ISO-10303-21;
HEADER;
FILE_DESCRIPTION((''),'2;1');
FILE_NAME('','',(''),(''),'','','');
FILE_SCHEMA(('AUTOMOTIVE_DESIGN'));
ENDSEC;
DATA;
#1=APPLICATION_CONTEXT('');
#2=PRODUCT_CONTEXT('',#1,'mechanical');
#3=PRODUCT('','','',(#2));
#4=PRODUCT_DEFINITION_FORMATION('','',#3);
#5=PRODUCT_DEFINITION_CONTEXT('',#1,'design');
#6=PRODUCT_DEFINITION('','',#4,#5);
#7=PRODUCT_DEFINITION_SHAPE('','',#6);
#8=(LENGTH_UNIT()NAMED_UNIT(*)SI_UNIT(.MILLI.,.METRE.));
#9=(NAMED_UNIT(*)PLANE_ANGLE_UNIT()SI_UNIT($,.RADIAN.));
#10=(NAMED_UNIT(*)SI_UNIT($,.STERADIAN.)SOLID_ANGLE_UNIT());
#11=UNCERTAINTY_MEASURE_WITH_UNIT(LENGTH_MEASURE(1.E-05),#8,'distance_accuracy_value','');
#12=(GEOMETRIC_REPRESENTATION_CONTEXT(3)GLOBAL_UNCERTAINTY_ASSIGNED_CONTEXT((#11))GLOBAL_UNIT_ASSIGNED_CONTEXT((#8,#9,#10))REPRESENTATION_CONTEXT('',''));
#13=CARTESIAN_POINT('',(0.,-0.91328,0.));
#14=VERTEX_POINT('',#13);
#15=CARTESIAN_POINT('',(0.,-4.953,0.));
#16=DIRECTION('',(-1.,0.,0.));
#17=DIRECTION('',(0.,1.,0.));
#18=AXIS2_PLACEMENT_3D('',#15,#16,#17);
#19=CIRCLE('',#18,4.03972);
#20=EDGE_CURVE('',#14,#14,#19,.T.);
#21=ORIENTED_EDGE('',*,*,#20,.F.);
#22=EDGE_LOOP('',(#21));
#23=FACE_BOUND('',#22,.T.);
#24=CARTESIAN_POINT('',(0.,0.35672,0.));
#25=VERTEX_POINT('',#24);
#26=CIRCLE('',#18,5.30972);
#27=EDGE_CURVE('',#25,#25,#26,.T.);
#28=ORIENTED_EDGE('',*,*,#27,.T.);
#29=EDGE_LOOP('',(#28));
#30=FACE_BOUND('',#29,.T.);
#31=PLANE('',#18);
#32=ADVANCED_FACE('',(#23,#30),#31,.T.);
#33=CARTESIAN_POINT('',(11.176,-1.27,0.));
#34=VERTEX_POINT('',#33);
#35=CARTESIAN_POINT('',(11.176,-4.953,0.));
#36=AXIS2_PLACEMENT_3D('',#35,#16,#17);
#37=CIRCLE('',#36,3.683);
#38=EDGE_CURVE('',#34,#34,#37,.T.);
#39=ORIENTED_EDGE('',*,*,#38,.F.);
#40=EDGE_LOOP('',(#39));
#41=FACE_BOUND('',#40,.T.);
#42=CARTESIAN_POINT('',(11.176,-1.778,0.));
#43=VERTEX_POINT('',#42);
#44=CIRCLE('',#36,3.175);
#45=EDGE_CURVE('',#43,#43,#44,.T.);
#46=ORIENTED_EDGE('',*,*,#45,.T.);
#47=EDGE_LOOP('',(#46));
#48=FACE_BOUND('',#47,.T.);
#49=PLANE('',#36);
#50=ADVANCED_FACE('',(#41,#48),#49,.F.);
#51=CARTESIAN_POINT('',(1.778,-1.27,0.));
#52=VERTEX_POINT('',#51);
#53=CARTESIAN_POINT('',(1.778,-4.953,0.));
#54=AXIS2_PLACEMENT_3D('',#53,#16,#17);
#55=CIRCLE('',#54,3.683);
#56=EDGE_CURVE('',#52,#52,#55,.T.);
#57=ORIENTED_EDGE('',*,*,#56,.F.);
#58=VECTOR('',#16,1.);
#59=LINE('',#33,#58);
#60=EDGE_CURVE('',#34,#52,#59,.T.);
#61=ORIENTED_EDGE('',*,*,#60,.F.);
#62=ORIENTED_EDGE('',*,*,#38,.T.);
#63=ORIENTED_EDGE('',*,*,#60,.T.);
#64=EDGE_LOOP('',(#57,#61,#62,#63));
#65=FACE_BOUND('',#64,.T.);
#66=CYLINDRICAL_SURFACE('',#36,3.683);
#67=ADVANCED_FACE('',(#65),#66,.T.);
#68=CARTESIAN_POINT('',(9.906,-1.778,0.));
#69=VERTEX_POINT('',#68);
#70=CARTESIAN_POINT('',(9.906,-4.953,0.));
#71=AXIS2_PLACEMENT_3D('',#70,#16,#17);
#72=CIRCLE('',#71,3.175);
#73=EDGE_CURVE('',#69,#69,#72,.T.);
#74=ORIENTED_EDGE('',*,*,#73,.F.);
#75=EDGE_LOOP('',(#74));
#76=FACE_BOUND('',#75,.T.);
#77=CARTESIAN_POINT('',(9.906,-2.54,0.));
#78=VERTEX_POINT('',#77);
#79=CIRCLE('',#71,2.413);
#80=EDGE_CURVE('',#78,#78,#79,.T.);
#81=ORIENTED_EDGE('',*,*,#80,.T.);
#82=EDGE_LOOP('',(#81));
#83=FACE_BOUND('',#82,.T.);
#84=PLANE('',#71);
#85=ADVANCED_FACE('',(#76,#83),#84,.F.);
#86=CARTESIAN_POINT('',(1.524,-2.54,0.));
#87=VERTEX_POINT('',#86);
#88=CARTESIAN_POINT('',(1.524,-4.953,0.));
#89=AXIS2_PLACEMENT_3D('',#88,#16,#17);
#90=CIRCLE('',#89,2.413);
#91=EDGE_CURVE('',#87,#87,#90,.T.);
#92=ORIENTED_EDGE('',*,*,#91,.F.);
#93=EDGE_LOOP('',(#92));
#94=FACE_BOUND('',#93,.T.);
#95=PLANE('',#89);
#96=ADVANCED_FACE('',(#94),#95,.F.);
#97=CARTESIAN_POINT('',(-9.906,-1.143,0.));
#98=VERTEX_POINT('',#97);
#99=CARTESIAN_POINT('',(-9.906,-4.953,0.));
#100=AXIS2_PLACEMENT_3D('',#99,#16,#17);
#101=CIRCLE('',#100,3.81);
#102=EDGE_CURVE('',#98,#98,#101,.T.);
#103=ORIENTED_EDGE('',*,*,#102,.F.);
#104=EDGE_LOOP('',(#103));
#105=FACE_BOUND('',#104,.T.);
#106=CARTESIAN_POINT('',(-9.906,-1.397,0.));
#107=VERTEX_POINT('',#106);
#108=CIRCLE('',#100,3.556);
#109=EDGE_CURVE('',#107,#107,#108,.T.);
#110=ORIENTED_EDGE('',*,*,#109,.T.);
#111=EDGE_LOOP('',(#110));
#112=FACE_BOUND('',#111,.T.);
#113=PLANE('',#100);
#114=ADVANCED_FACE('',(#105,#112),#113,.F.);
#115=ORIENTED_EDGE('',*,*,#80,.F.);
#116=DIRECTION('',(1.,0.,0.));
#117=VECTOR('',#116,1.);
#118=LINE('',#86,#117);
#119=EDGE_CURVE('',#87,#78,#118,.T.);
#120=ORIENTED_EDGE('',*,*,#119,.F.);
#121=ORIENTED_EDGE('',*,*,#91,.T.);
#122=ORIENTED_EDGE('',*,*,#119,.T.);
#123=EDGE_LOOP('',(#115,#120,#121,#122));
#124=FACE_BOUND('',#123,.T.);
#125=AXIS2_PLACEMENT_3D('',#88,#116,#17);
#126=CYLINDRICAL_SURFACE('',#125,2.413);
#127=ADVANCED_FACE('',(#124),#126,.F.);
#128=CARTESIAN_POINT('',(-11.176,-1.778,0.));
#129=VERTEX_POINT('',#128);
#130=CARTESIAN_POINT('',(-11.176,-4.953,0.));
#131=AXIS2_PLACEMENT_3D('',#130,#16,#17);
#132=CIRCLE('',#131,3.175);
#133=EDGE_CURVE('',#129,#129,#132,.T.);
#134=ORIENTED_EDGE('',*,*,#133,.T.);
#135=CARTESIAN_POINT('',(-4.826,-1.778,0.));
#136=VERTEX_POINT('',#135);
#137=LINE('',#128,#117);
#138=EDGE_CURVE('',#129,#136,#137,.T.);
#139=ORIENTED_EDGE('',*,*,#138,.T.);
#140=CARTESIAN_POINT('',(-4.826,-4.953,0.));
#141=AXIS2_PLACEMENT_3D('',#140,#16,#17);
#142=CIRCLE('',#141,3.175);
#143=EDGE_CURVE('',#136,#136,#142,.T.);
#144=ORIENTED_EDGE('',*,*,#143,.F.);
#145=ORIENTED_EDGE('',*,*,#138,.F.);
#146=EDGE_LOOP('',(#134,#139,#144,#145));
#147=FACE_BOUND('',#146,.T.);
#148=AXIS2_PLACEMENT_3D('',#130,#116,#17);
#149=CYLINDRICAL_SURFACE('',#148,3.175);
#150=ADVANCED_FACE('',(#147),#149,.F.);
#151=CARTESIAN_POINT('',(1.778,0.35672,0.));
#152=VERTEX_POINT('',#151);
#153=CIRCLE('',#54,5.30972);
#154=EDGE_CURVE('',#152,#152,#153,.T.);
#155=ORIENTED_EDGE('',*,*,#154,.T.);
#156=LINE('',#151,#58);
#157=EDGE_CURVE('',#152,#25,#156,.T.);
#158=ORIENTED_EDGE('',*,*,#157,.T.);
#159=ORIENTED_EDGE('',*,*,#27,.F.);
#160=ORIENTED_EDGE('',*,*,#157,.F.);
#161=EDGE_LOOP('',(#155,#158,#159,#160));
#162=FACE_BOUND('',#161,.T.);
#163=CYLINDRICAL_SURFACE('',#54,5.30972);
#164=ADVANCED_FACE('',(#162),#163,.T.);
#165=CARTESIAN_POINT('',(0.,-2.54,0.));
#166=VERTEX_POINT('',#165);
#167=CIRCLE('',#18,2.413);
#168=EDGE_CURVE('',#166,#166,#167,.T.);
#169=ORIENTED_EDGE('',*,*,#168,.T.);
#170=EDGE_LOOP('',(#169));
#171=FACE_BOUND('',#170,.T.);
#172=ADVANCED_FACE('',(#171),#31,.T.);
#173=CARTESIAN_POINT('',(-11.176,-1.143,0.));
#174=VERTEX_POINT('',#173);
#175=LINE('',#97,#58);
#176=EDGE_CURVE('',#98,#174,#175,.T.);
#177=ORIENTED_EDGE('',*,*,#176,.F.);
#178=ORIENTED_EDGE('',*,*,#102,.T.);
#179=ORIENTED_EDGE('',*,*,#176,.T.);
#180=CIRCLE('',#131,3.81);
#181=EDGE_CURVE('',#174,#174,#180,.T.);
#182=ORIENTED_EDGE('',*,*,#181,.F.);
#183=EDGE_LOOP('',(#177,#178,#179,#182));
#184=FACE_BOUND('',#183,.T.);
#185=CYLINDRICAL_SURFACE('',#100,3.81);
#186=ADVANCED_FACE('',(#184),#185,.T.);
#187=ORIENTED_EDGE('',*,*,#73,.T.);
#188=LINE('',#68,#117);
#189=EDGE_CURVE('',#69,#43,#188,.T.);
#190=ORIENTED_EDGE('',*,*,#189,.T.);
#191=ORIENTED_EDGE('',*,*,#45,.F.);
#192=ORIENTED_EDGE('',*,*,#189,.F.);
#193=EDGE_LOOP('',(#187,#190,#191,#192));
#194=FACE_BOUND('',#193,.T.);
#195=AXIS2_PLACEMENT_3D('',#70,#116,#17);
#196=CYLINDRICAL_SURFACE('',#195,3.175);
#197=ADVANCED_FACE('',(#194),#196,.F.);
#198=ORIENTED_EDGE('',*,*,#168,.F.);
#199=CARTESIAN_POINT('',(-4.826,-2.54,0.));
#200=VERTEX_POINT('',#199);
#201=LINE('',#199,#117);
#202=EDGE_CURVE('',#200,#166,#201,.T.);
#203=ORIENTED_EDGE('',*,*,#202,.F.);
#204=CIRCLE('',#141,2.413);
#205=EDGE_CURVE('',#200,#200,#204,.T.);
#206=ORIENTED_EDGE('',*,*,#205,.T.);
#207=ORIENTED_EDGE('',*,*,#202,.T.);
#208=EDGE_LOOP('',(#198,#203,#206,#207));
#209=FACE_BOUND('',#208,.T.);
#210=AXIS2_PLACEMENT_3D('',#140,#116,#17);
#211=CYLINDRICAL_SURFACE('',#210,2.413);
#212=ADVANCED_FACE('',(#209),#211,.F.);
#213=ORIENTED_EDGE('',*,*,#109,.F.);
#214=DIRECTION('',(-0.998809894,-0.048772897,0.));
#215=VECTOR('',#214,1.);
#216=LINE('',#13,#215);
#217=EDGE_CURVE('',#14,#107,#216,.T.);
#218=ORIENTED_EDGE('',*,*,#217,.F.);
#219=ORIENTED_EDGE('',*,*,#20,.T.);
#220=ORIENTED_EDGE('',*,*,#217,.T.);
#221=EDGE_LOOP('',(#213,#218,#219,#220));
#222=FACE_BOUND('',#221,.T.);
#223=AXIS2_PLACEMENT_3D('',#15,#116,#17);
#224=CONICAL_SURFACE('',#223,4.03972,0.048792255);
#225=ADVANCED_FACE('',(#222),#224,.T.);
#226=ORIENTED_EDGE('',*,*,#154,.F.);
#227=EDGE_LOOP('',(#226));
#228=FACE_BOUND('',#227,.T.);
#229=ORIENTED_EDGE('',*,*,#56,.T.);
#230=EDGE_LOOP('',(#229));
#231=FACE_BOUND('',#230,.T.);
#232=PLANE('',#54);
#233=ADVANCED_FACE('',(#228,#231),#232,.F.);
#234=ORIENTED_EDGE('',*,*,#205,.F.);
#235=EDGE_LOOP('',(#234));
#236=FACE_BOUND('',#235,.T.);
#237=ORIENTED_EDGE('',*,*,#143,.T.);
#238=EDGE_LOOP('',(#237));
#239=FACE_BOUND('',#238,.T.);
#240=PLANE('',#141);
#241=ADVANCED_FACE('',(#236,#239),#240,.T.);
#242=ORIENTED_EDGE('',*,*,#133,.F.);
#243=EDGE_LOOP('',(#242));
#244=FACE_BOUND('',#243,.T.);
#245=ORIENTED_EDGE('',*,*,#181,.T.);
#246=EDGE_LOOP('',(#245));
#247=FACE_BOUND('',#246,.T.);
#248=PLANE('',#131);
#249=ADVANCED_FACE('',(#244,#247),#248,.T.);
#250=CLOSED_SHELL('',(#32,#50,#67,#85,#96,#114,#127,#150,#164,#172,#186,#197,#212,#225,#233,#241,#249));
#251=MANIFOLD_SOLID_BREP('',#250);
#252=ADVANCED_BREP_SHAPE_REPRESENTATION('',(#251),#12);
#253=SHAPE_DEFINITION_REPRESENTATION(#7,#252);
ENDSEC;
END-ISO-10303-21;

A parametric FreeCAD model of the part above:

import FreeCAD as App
import Part
import Sketcher
from FreeCAD import Vector
Q = App.Units.Quantity

doc = App.newDocument("Part")
body = doc.addObject("PartDesign::Body", "Body")

# Sketch on XY plane
sketch1 = body.newObject("Sketcher::SketchObject", "Sketch")
sketch1.AttachmentSupport = (doc.getObject("XY_Plane"), [""])
sketch1.MapMode = "FlatFace"
sketch1.addGeometry(Part.LineSegment(Vector(11.18, -1.27, 0), Vector(1.78, -1.27, 0)), False)
sketch1.addGeometry(Part.LineSegment(Vector(1.78, -1.27, 0), Vector(1.78, 0.36, 0)), False)
sketch1.addGeometry(Part.LineSegment(Vector(1.78, 0.36, 0), Vector(0, 0.36, 0)), False)
sketch1.addGeometry(Part.LineSegment(Vector(0, 0.36, 0), Vector(0, -0.91, 0)), False)
sketch1.addGeometry(Part.LineSegment(Vector(0, -0.91, 0), Vector(-9.91, -1.4, 0)), False)
sketch1.addGeometry(Part.LineSegment(Vector(-9.91, -1.4, 0), Vector(-9.91, -1.14, 0)), False)
sketch1.addGeometry(Part.LineSegment(Vector(-9.91, -1.14, 0), Vector(-11.18, -1.14, 0)), False)
sketch1.addGeometry(Part.LineSegment(Vector(-11.18, -1.14, 0), Vector(-11.18, -1.78, 0)), False)
sketch1.addGeometry(Part.LineSegment(Vector(-11.18, -1.78, 0), Vector(-4.83, -1.78, 0)), False)
sketch1.addGeometry(Part.LineSegment(Vector(-4.83, -1.78, 0), Vector(-4.83, -2.54, 0)), False)
sketch1.addGeometry(Part.LineSegment(Vector(-4.83, -2.54, 0), Vector(0, -2.54, 0)), False)
sketch1.addGeometry(Part.LineSegment(Vector(0, -2.54, 0), Vector(0, -4.95, 0)), False)
sketch1.addGeometry(Part.LineSegment(Vector(0, -4.95, 0), Vector(1.52, -4.95, 0)), False)
sketch1.addGeometry(Part.LineSegment(Vector(1.52, -4.95, 0), Vector(1.52, -2.54, 0)), False)
sketch1.addGeometry(Part.LineSegment(Vector(1.52, -2.54, 0), Vector(9.91, -2.54, 0)), False)
sketch1.addGeometry(Part.LineSegment(Vector(9.91, -2.54, 0), Vector(9.91, -1.78, 0)), False)
sketch1.addGeometry(Part.LineSegment(Vector(9.91, -1.78, 0), Vector(11.18, -1.78, 0)), False)
sketch1.addGeometry(Part.LineSegment(Vector(11.18, -1.78, 0), Vector(11.18, -1.27, 0)), False)
sketch1.addGeometry(Part.LineSegment(Vector(11.18, -4.95, 0), Vector(-11.18, -4.95, 0)), True)  # axis
sketch1.addConstraint(Sketcher.Constraint("Coincident", 0, 2, 1, 1))
sketch1.addConstraint(Sketcher.Constraint("Coincident", 1, 2, 2, 1))
sketch1.addConstraint(Sketcher.Constraint("Coincident", 2, 2, 3, 1))
sketch1.addConstraint(Sketcher.Constraint("Coincident", 3, 2, 4, 1))
sketch1.addConstraint(Sketcher.Constraint("Coincident", 4, 2, 5, 1))
sketch1.addConstraint(Sketcher.Constraint("Coincident", 5, 2, 6, 1))
sketch1.addConstraint(Sketcher.Constraint("Coincident", 6, 2, 7, 1))
sketch1.addConstraint(Sketcher.Constraint("Coincident", 7, 2, 8, 1))
sketch1.addConstraint(Sketcher.Constraint("Coincident", 8, 2, 9, 1))
sketch1.addConstraint(Sketcher.Constraint("Coincident", 9, 2, 10, 1))
sketch1.addConstraint(Sketcher.Constraint("Coincident", 10, 2, 11, 1))
sketch1.addConstraint(Sketcher.Constraint("Coincident", 11, 2, 12, 1))
sketch1.addConstraint(Sketcher.Constraint("Coincident", 12, 2, 13, 1))
sketch1.addConstraint(Sketcher.Constraint("Coincident", 13, 2, 14, 1))
sketch1.addConstraint(Sketcher.Constraint("Coincident", 14, 2, 15, 1))
sketch1.addConstraint(Sketcher.Constraint("Coincident", 15, 2, 16, 1))
sketch1.addConstraint(Sketcher.Constraint("Coincident", 16, 2, 17, 1))
sketch1.addConstraint(Sketcher.Constraint("Coincident", 17, 2, 0, 1))
sketch1.addConstraint(Sketcher.Constraint("Horizontal", 0))
sketch1.addConstraint(Sketcher.Constraint("Vertical", 1))
sketch1.addConstraint(Sketcher.Constraint("Horizontal", 2))
sketch1.addConstraint(Sketcher.Constraint("Vertical", 3))
sketch1.addConstraint(Sketcher.Constraint("Vertical", 5))
sketch1.addConstraint(Sketcher.Constraint("Horizontal", 6))
sketch1.addConstraint(Sketcher.Constraint("Vertical", 7))
sketch1.addConstraint(Sketcher.Constraint("Horizontal", 8))
sketch1.addConstraint(Sketcher.Constraint("Vertical", 9))
sketch1.addConstraint(Sketcher.Constraint("Horizontal", 10))
sketch1.addConstraint(Sketcher.Constraint("Vertical", 11))
sketch1.addConstraint(Sketcher.Constraint("Horizontal", 12))
sketch1.addConstraint(Sketcher.Constraint("Vertical", 13))
sketch1.addConstraint(Sketcher.Constraint("Horizontal", 14))
sketch1.addConstraint(Sketcher.Constraint("Vertical", 15))
sketch1.addConstraint(Sketcher.Constraint("Horizontal", 16))
sketch1.addConstraint(Sketcher.Constraint("Vertical", 17))
sketch1.addConstraint(Sketcher.Constraint("Horizontal", 18))
sketch1.addConstraint(Sketcher.Constraint("Symmetric", 7, 2, 16, 2, -2))
sketch1.addConstraint(Sketcher.Constraint("PointOnObject", 2, 2, -2))
sketch1.addConstraint(Sketcher.Constraint("PointOnObject", 10, 2, -2))
sketch1.addConstraint(Sketcher.Constraint("Horizontal", 10, 2, 13, 2))
sketch1.addConstraint(Sketcher.Constraint("Horizontal", 12, 2, 18, 1))
sketch1.addConstraint(Sketcher.Constraint("Vertical", 17, 2, 18, 1))
sketch1.addConstraint(Sketcher.Constraint("Vertical", 7, 2, 18, 2))
sketch1.addConstraint(Sketcher.Constraint("Equal", 6, 16))
sketch1.addConstraint(Sketcher.Constraint("Equal", 16, 3))
sketch1.addConstraint(Sketcher.Constraint("DistanceX", 0, 2, 0, 1, Q("0.37 in")))
sketch1.addConstraint(Sketcher.Constraint("DistanceX", 2, 2, 2, 1, Q("0.07 in")))
sketch1.addConstraint(Sketcher.Constraint("DistanceX", 6, 2, 6, 1, Q("0.05 in")))
sketch1.addConstraint(Sketcher.Constraint("DistanceX", 8, 1, 8, 2, Q("0.25 in")))
sketch1.addConstraint(Sketcher.Constraint("DistanceX", 12, 1, 12, 2, Q("0.06 in")))
sketch1.addConstraint(Sketcher.Constraint("DistanceY", 5, 1, 5, 2, Q("0.01 in")))
sketch1.addConstraint(Sketcher.Constraint("DistanceY", 9, 2, 9, 1, Q("0.03 in")))
sketch1.addConstraint(Sketcher.Constraint("DistanceY", 17, 1, 17, 2, Q("0.02 in")))
sketch1.addConstraint(Sketcher.Constraint("DistanceY", 9, 2, -1, 1, Q("0.1 in")))
sketch1.addConstraint(Sketcher.Constraint("DistanceY", 7, 2, 7, 1, Q("0.025 in")))
sketch1.addConstraint(Sketcher.Constraint("DistanceY", 11, 2, 11, 1, Q("0.095 in")))
sketch1.addConstraint(Sketcher.Constraint("DistanceY", 1, 1, 1, 2, 1.62672))
revolution = body.newObject("PartDesign::Revolution", "Revolution")
revolution.Profile = sketch1
revolution.ReferenceAxis = (sketch1, ["Axis0"])
revolution.Angle = 360

doc.recompute()
